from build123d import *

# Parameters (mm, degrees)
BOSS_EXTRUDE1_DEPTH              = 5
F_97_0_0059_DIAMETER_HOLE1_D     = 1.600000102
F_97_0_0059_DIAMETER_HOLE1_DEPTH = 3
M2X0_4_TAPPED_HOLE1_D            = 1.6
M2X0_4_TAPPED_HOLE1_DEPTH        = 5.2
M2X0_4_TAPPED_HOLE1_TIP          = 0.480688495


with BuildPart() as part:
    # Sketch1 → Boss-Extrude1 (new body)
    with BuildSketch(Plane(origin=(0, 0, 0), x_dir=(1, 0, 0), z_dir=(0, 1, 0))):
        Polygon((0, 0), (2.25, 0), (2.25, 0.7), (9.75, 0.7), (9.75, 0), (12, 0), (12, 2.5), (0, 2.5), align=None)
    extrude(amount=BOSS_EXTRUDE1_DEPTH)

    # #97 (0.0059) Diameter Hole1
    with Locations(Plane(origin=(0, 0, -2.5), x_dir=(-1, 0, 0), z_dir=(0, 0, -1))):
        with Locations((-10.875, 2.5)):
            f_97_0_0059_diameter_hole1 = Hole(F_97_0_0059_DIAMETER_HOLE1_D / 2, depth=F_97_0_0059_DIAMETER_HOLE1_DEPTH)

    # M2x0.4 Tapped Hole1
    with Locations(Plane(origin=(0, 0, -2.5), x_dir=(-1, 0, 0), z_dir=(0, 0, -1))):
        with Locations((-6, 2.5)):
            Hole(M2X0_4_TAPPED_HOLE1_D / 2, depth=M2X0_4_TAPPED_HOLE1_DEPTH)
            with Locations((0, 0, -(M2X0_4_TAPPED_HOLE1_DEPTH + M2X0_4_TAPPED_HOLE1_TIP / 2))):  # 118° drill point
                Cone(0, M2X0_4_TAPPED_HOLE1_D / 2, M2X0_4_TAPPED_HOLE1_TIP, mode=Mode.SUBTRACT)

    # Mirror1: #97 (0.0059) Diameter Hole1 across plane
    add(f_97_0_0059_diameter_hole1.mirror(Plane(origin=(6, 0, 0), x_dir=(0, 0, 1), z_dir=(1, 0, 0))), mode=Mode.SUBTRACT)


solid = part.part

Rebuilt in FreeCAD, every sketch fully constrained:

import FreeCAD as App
import Part
import Sketcher

V = App.Vector

doc = App.newDocument("Part")
body = doc.addObject("PartDesign::Body", "Body")

# Sketch on XZ plane
sketch1 = body.newObject("Sketcher::SketchObject", "Sketch")
sketch1.AttachmentSupport = (doc.getObject("XZ_Plane"), [""])
sketch1.MapMode = "FlatFace"
sketch1.addGeometry([
    Part.LineSegment(V(0, 0, 0), V(2.2, 0, 0)),  # 0
    Part.LineSegment(V(2.2, 0, 0), V(2.2, -0.7, 0)),  # 1
    Part.LineSegment(V(2.2, -0.7, 0), V(9.8, -0.7, 0)),  # 2
    Part.LineSegment(V(9.8, -0.7, 0), V(9.8, 0, 0)),  # 3
    Part.LineSegment(V(9.8, 0, 0), V(12, 0, 0)),  # 4
    Part.LineSegment(V(12, 0, 0), V(12, -2.5, 0)),  # 5
    Part.LineSegment(V(12, -2.5, 0), V(0, -2.5, 0)),  # 6
    Part.LineSegment(V(0, -2.5, 0), V(0, 0, 0)),  # 7
], False)
sketch1.addConstraint([
    Sketcher.Constraint("Coincident", 0, 2, 1, 1),
    Sketcher.Constraint("Coincident", 1, 2, 2, 1),
    Sketcher.Constraint("Coincident", 2, 2, 3, 1),
    Sketcher.Constraint("Coincident", 3, 2, 4, 1),
    Sketcher.Constraint("Coincident", 4, 2, 5, 1),
    Sketcher.Constraint("Coincident", 5, 2, 6, 1),
    Sketcher.Constraint("Coincident", 6, 2, 7, 1),
    Sketcher.Constraint("Coincident", 7, 2, 0, 1),
    Sketcher.Constraint("Horizontal", 0),
    Sketcher.Constraint("Vertical", 1),
    Sketcher.Constraint("Horizontal", 2),
    Sketcher.Constraint("Vertical", 3),
    Sketcher.Constraint("Horizontal", 4),
    Sketcher.Constraint("Vertical", 5),
    Sketcher.Constraint("Horizontal", 6),
    Sketcher.Constraint("Vertical", 7),
    Sketcher.Constraint("Coincident", 7, 2, -1, 1),
    Sketcher.Constraint("PointOnObject", 3, 2, -1),
    Sketcher.Constraint("Equal", 0, 4),
    Sketcher.Constraint("DistanceX", 6, 2, 6, 1, 12.0),
    Sketcher.Constraint("DistanceX", 2, 1, 2, 2, 7.5),
    Sketcher.Constraint("DistanceY", 1, 2, 1, 1, 0.7),
    Sketcher.Constraint("DistanceY", 5, 2, 5, 1, 2.5),
])
pad1 = body.newObject("PartDesign::Pad", "Pad")
pad1.Profile = sketch1
pad1.Length = 5
pad1.Reversed = True

# Sketch on XY plane
sketch2 = body.newObject("Sketcher::SketchObject", "Sketch001")
sketch2.AttachmentSupport = (doc.getObject("XY_Plane"), [""])
sketch2.MapMode = "FlatFace"
sketch2.AttachmentOffset = App.Placement(V(0, 0, -2.5), App.Rotation())
sketch2.addGeometry(Part.Circle(V(10.9, 2.5, 0), V(0, 0, 1), 0.8), False)
sketch2.addConstraint([
    Sketcher.Constraint("Diameter", 0, 1.6),
    Sketcher.Constraint("DistanceY", -1, 1, 0, 3, 2.5),
    Sketcher.Constraint("DistanceX", -1, 1, 0, 3, 10.875),
])
doc.recompute()
hole = body.newObject("PartDesign::Hole", "Hole")
hole.Profile = sketch2
hole.ThreadType = "None"
hole.Diameter = 1.6
hole.DepthType = "Dimension"
hole.Depth = 3
hole.DrillPoint = "Flat"
hole.Reversed = True

# Sketch on XY plane
sketch3 = body.newObject("Sketcher::SketchObject", "Sketch002")
sketch3.AttachmentSupport = (doc.getObject("XY_Plane"), [""])
sketch3.MapMode = "FlatFace"
sketch3.AttachmentOffset = App.Placement(V(0, 0, -2.5), App.Rotation())
sketch3.addGeometry(Part.Circle(V(6, 2.5, 0), V(0, 0, 1), 0.8), False)
sketch3.addConstraint([
    Sketcher.Constraint("Diameter", 0, 1.6),
    Sketcher.Constraint("DistanceX", -1, 1, 0, 3, 6.0),
    Sketcher.Constraint("DistanceY", -1, 1, 0, 3, 2.5),
])
doc.recompute()
hole2 = body.newObject("PartDesign::Hole", "Hole001")
hole2.Profile = sketch3
hole2.ThreadType = "None"
hole2.Diameter = 1.6
hole2.DepthType = "Dimension"
hole2.Depth = 5.2
hole2.DrillPoint = "Angled"
hole2.DrillPointAngle = 118
hole2.Reversed = True
doc.recompute()

datumplane = body.newObject("PartDesign::Plane", "DatumPlane")
datumplane.AttachmentSupport = (doc.getObject("YZ_Plane"), [""])
datumplane.MapMode = "FlatFace"
datumplane.AttachmentOffset = App.Placement(V(0, 0, 6), App.Rotation())
mirrored = body.newObject("PartDesign::Mirrored", "Mirrored")
mirrored.Originals = [hole]
mirrored.MirrorPlane = (datumplane, [""])
body.Tip = mirrored

doc.recompute()
